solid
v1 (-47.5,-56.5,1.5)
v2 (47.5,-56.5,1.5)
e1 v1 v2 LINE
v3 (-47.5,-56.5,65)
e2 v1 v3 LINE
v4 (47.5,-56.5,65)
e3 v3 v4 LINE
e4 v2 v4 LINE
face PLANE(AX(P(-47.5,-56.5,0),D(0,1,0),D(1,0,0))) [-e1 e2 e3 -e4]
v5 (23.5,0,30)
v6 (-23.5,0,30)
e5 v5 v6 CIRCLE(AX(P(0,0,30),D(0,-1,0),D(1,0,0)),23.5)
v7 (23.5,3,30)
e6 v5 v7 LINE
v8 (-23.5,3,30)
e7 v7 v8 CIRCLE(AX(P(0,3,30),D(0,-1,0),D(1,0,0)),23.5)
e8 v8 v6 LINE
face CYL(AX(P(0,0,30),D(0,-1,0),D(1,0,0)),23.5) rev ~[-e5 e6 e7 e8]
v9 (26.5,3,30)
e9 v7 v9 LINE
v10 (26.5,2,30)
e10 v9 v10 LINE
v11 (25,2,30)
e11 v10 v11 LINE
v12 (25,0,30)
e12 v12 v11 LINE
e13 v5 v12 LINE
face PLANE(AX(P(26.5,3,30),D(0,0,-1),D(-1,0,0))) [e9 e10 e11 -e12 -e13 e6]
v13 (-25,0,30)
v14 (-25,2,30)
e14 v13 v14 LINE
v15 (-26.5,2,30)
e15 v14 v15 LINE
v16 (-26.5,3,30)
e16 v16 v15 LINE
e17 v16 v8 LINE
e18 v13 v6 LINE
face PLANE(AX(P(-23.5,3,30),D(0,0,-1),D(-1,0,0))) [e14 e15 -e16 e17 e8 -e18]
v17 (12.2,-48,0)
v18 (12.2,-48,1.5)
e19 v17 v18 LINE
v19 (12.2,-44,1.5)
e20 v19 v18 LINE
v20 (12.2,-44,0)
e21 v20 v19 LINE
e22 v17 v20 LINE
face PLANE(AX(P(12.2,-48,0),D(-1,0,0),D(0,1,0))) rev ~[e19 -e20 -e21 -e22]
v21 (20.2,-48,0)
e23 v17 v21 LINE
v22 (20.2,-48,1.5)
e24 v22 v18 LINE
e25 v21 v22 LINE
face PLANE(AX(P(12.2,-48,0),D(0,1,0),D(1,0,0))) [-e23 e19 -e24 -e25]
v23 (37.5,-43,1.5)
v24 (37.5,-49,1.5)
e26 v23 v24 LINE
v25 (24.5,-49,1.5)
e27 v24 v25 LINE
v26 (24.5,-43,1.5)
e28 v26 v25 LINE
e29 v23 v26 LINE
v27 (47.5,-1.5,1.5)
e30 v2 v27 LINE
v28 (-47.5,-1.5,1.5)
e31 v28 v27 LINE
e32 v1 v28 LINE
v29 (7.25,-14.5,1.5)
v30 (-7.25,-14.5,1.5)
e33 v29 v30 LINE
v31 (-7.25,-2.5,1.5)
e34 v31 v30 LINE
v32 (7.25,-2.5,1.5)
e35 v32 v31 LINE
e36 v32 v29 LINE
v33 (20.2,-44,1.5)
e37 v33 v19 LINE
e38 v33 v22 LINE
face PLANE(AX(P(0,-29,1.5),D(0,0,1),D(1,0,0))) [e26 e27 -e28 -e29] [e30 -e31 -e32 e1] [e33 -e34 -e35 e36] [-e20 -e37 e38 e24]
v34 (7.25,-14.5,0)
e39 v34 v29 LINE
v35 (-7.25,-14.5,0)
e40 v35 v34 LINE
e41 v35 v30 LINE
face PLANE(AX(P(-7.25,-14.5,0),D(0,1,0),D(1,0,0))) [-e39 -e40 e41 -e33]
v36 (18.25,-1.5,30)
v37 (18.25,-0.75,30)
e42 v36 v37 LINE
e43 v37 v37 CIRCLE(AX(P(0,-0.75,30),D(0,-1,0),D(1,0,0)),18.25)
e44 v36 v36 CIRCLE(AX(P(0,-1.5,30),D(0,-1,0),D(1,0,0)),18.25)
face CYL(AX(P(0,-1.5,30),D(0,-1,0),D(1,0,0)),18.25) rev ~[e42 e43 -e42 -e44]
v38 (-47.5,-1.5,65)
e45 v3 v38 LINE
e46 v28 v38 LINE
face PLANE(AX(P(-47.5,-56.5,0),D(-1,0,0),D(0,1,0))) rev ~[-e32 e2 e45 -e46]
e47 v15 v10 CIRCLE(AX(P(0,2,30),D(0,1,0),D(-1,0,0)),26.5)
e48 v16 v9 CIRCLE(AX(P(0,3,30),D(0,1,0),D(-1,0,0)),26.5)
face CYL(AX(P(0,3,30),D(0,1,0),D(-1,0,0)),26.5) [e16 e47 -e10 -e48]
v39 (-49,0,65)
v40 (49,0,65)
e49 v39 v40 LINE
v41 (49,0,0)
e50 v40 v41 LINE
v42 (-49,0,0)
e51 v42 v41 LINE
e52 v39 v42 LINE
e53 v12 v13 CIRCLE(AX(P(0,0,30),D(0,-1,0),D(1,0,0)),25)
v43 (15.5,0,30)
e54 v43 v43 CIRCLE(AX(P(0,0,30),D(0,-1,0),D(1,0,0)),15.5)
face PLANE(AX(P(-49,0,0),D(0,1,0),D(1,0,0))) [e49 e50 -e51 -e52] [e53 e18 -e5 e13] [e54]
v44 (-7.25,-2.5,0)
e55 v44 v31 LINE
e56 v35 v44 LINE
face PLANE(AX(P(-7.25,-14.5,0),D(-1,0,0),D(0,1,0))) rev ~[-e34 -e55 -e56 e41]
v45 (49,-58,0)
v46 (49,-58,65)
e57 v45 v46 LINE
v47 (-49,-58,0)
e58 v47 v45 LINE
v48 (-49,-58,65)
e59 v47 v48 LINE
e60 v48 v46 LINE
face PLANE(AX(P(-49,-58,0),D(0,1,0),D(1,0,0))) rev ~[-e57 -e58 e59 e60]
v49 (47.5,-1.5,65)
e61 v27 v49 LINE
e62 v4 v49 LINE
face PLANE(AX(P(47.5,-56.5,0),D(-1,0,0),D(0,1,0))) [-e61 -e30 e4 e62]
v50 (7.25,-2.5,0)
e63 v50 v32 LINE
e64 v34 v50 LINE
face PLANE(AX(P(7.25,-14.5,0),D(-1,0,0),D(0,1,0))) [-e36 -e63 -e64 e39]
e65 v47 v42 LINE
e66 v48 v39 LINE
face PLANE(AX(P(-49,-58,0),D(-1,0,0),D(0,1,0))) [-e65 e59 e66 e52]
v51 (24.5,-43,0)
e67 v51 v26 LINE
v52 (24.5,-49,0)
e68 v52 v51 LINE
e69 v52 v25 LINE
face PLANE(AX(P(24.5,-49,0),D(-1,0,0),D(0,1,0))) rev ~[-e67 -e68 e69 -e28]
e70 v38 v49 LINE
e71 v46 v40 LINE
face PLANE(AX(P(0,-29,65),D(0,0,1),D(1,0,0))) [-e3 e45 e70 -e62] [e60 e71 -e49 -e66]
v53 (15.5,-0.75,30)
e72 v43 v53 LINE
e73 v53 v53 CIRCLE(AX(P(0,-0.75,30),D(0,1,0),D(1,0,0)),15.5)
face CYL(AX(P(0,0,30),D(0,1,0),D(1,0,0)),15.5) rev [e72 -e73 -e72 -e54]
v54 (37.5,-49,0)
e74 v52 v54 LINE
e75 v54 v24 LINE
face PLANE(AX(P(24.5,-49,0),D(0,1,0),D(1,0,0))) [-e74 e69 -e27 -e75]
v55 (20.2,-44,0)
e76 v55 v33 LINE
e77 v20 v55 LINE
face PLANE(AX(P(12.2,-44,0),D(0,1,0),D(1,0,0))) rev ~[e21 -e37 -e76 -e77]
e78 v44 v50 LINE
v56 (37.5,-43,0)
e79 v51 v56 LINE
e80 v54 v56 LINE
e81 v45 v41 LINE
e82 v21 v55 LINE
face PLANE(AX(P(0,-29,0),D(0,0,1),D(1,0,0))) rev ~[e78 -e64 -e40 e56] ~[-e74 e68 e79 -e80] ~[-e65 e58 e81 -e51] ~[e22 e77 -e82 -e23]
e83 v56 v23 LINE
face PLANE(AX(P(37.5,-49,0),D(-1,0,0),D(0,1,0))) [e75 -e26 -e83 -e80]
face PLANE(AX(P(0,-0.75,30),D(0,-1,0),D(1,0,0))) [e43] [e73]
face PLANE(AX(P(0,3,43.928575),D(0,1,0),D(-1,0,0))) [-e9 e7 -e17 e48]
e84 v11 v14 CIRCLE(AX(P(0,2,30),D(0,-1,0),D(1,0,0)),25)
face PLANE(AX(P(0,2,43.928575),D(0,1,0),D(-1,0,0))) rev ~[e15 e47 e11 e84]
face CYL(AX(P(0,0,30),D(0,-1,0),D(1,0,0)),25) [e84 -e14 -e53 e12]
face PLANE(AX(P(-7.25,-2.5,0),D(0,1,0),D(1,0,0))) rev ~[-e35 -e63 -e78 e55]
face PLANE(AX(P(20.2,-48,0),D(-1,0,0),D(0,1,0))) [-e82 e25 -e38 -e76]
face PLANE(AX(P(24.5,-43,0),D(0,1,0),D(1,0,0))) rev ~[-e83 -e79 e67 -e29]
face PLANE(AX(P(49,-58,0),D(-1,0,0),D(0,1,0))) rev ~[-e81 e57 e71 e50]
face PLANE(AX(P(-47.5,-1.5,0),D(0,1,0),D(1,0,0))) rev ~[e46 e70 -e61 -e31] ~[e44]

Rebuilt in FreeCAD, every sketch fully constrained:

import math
import FreeCAD as App
import Part
import Sketcher
Q = App.Units.Quantity

doc = App.newDocument("Part")
body = doc.addObject("PartDesign::Body", "Body")

# Sketch on XY plane
sketch1 = body.newObject("Sketcher::SketchObject", "Sketch")
sketch1.AttachmentSupport = (doc.getObject("XY_Plane"), [""])
sketch1.MapMode = "FlatFace"
sketch1.addGeometry([
    Part.LineSegment(App.Vector(-49, 0, 0), App.Vector(-49, -58, 0)),  # 0
    Part.LineSegment(App.Vector(-49, -58, 0), App.Vector(49, -58, 0)),  # 1
    Part.LineSegment(App.Vector(49, -58, 0), App.Vector(49, 0, 0)),  # 2
    Part.LineSegment(App.Vector(49, 0, 0), App.Vector(-49, 0, 0)),  # 3
    Part.LineSegment(App.Vector(48, -56, 0), App.Vector(-48, -56, 0)),  # 4
    Part.LineSegment(App.Vector(-48, -56, 0), App.Vector(-48, -2, 0)),  # 5
    Part.LineSegment(App.Vector(-48, -2, 0), App.Vector(48, -2, 0)),  # 6
    Part.LineSegment(App.Vector(48, -2, 0), App.Vector(48, -56, 0)),  # 7
], False)
sketch1.addConstraint([
    Sketcher.Constraint("Coincident", 0, 2, 1, 1),
    Sketcher.Constraint("Coincident", 1, 2, 2, 1),
    Sketcher.Constraint("Coincident", 2, 2, 3, 1),
    Sketcher.Constraint("Coincident", 3, 2, 0, 1),
    Sketcher.Constraint("Coincident", 4, 2, 5, 1),
    Sketcher.Constraint("Coincident", 5, 2, 6, 1),
    Sketcher.Constraint("Coincident", 6, 2, 7, 1),
    Sketcher.Constraint("Coincident", 7, 2, 4, 1),
    Sketcher.Constraint("Vertical", 0),
    Sketcher.Constraint("Horizontal", 1),
    Sketcher.Constraint("Vertical", 2),
    Sketcher.Constraint("Horizontal", 3),
    Sketcher.Constraint("Horizontal", 4),
    Sketcher.Constraint("Vertical", 5),
    Sketcher.Constraint("Horizontal", 6),
    Sketcher.Constraint("Vertical", 7),
    Sketcher.Constraint("Symmetric", 2, 2, 3, 2, -1, 1),
    Sketcher.Constraint("DistanceX", 1, 1, 1, 2, Q("98 mm")),
    Sketcher.Constraint("DistanceX", 4, 2, 4, 1, Q("95 mm")),
    Sketcher.Constraint("DistanceY", 0, 2, 0, 1, Q("58 mm")),
    Sketcher.Constraint("DistanceY", 5, 1, 5, 2, Q("55 mm")),
    Sketcher.Constraint("DistanceX", 4, 2, -1, 1, Q("47.5 mm")),
    Sketcher.Constraint("DistanceY", 4, 2, -1, 1, Q("56.5 mm")),
])
pad1 = body.newObject("PartDesign::Pad", "Pad")
pad1.Profile = sketch1
pad1.Length = 65

# Sketch on XY plane
sketch2 = body.newObject("Sketcher::SketchObject", "Sketch001")
sketch2.AttachmentSupport = (doc.getObject("XY_Plane"), [""])
sketch2.MapMode = "FlatFace"
sketch2.addGeometry([
    Part.LineSegment(App.Vector(-49, 0, 0), App.Vector(-49, -58, 0)),
    Part.LineSegment(App.Vector(-49, -58, 0), App.Vector(49, -58, 0)),
    Part.LineSegment(App.Vector(49, -58, 0), App.Vector(49, 0, 0)),
    Part.LineSegment(App.Vector(49, 0, 0), App.Vector(-49, 0, 0)),
], False)
sketch2.addConstraint([
    Sketcher.Constraint("Coincident", 0, 2, 1, 1),
    Sketcher.Constraint("Coincident", 1, 2, 2, 1),
    Sketcher.Constraint("Coincident", 2, 2, 3, 1),
    Sketcher.Constraint("Coincident", 3, 2, 0, 1),
    Sketcher.Constraint("Vertical", 0),
    Sketcher.Constraint("Horizontal", 1),
    Sketcher.Constraint("Vertical", 2),
    Sketcher.Constraint("Horizontal", 3),
    Sketcher.Constraint("Symmetric", 2, 2, 3, 2, -1, 1),
    Sketcher.Constraint("DistanceX", 1, 1, 1, 2, Q("98 mm")),
    Sketcher.Constraint("DistanceY", 0, 2, 0, 1, Q("58 mm")),
])
pad2 = body.newObject("PartDesign::Pad", "Pad001")
pad2.Profile = sketch2
pad2.Length = 1.5

# Sketch on XZ plane
sketch3 = body.newObject("Sketcher::SketchObject", "Sketch002")
sketch3.AttachmentSupport = (doc.getObject("XZ_Plane"), [""])
sketch3.MapMode = "FlatFace"
sketch3.addGeometry(Part.Circle(App.Vector(0, 30, 0), App.Vector(0, 0, 1), 16), False)
sketch3.addConstraint([
    Sketcher.Constraint("PointOnObject", 0, 3, -2),
    Sketcher.Constraint("Diameter", 0, Q("31 mm")),
    Sketcher.Constraint("DistanceY", -1, 1, 0, 3, Q("30 mm")),
])
pocket1 = body.newObject("PartDesign::Pocket", "Pocket")
pocket1.Profile = sketch3
pocket1.Length = 5
pocket1.Reversed = True

# Sketch on XZ plane
sketch4 = body.newObject("Sketcher::SketchObject", "Sketch003")
sketch4.AttachmentSupport = (doc.getObject("XZ_Plane"), [""])
sketch4.MapMode = "FlatFace"
sketch4.AttachmentOffset = App.Placement(App.Vector(0, 0, 1.5), App.Rotation())
sketch4.addGeometry(Part.Circle(App.Vector(0, 30, 0), App.Vector(0, 0, 1), 18), False)
sketch4.addConstraint([
    Sketcher.Constraint("PointOnObject", 0, 3, -2),
    Sketcher.Constraint("Diameter", 0, Q("36.5 mm")),
    Sketcher.Constraint("DistanceY", -1, 1, 0, 3, Q("30 mm")),
])
pocket2 = body.newObject("PartDesign::Pocket", "Pocket001")
pocket2.Profile = sketch4
pocket2.Length = 0.75

# Sketch on XY plane
sketch5 = body.newObject("Sketcher::SketchObject", "Sketch004")
sketch5.AttachmentSupport = (doc.getObject("XY_Plane"), [""])
sketch5.MapMode = "FlatFace"
sketch5.addGeometry([
    Part.LineSegment(App.Vector(-7.2, -2.5, 0), App.Vector(-7.2, -14.5, 0)),  # 0
    Part.LineSegment(App.Vector(-7.2, -14.5, 0), App.Vector(7.2, -14.5, 0)),  # 1
    Part.LineSegment(App.Vector(7.2, -14.5, 0), App.Vector(7.2, -2.5, 0)),  # 2
    Part.LineSegment(App.Vector(7.2, -2.5, 0), App.Vector(-7.2, -2.5, 0)),  # 3
    Part.LineSegment(App.Vector(24.5, -43, 0), App.Vector(24.5, -49, 0)),  # 4
    Part.LineSegment(App.Vector(24.5, -49, 0), App.Vector(37.5, -49, 0)),  # 5
    Part.LineSegment(App.Vector(37.5, -49, 0), App.Vector(37.5, -43, 0)),  # 6
    Part.LineSegment(App.Vector(37.5, -43, 0), App.Vector(24.5, -43, 0)),  # 7
    Part.LineSegment(App.Vector(12.2, -44, 0), App.Vector(12.2, -48, 0)),  # 8
    Part.LineSegment(App.Vector(12.2, -48, 0), App.Vector(20.2, -48, 0)),  # 9
    Part.LineSegment(App.Vector(20.2, -48, 0), App.Vector(20.2, -44, 0)),  # 10
    Part.LineSegment(App.Vector(20.2, -44, 0), App.Vector(12.2, -44, 0)),  # 11
], False)
sketch5.addConstraint([
    Sketcher.Constraint("Coincident", 0, 2, 1, 1),
    Sketcher.Constraint("Coincident", 1, 2, 2, 1),
    Sketcher.Constraint("Coincident", 2, 2, 3, 1),
    Sketcher.Constraint("Coincident", 3, 2, 0, 1),
    Sketcher.Constraint("Coincident", 4, 2, 5, 1),
    Sketcher.Constraint("Coincident", 5, 2, 6, 1),
    Sketcher.Constraint("Coincident", 6, 2, 7, 1),
    Sketcher.Constraint("Coincident", 7, 2, 4, 1),
    Sketcher.Constraint("Coincident", 8, 2, 9, 1),
    Sketcher.Constraint("Coincident", 9, 2, 10, 1),
    Sketcher.Constraint("Coincident", 10, 2, 11, 1),
    Sketcher.Constraint("Coincident", 11, 2, 8, 1),
    Sketcher.Constraint("Vertical", 0),
    Sketcher.Constraint("Horizontal", 1),
    Sketcher.Constraint("Vertical", 2),
    Sketcher.Constraint("Horizontal", 3),
    Sketcher.Constraint("Vertical", 4),
    Sketcher.Constraint("Horizontal", 5),
    Sketcher.Constraint("Vertical", 6),
    Sketcher.Constraint("Horizontal", 7),
    Sketcher.Constraint("Vertical", 8),
    Sketcher.Constraint("Horizontal", 9),
    Sketcher.Constraint("Vertical", 10),
    Sketcher.Constraint("Horizontal", 11),
    Sketcher.Constraint("DistanceX", 5, 1, 5, 2, Q("13 mm")),
    Sketcher.Constraint("DistanceX", 9, 1, 9, 2, Q("8 mm")),
    Sketcher.Constraint("DistanceY", 0, 2, 0, 1, Q("12 mm")),
    Sketcher.Constraint("DistanceY", 4, 2, 4, 1, Q("6 mm")),
    Sketcher.Constraint("DistanceY", 8, 2, 8, 1, Q("4 mm")),
    Sketcher.Constraint("DistanceX", 1, 1, 1, 2, Q("14.5 mm")),
    Sketcher.Constraint("DistanceY", 4, 2, -1, 1, Q("49 mm")),
    Sketcher.Constraint("DistanceY", 8, 2, -1, 1, Q("48 mm")),
    Sketcher.Constraint("DistanceY", 0, 2, -1, 1, Q("14.5 mm")),
    Sketcher.Constraint("DistanceX", -1, 1, 4, 2, Q("24.5 mm")),
    Sketcher.Constraint("DistanceX", -1, 1, 8, 2, Q("12.2 mm")),
    Sketcher.Constraint("DistanceX", 0, 2, -1, 1, Q("7.25 mm")),
])
pocket3 = body.newObject("PartDesign::Pocket", "Pocket002")
pocket3.Profile = sketch5
pocket3.Length = 5
pocket3.Reversed = True

# Sketch on XZ plane
sketch6 = body.newObject("Sketcher::SketchObject", "Sketch005")
sketch6.AttachmentSupport = (doc.getObject("XZ_Plane"), [""])
sketch6.MapMode = "FlatFace"
sketch6.addGeometry([
    Part.ArcOfCircle(Part.Circle(App.Vector(0, 30, 0), App.Vector(0, 0, 1), 23.5), math.radians(0), math.radians(180)),
    Part.LineSegment(App.Vector(23.5, 30, 0), App.Vector(25, 30, 0)),
    Part.ArcOfCircle(Part.Circle(App.Vector(0, 30, 0), App.Vector(0, 0, 1), 25), math.radians(0), math.radians(180)),
    Part.LineSegment(App.Vector(-25, 30, 0), App.Vector(-23.5, 30, 0)),
], False)
sketch6.addConstraint([
    Sketcher.Constraint("Coincident", 0, 1, 1, 1),
    Sketcher.Constraint("Coincident", 1, 2, 2, 1),
    Sketcher.Constraint("Coincident", 2, 2, 3, 1),
    Sketcher.Constraint("Coincident", 3, 2, 0, 2),
    Sketcher.Constraint("Horizontal", 1),
    Sketcher.Constraint("Horizontal", 3),
    Sketcher.Constraint("Coincident", 2, 3, 0, 3),
    Sketcher.Constraint("Symmetric", 1, 2, 2, 2, -2),
    Sketcher.Constraint("Horizontal", 2, 3, 0, 1),
    Sketcher.Constraint("Radius", 2, Q("25 mm")),
    Sketcher.Constraint("Radius", 0, Q("23.5 mm")),
    Sketcher.Constraint("DistanceY", -1, 1, 0, 3, Q("30 mm")),
])
pad3 = body.newObject("PartDesign::Pad", "Pad002")
pad3.Profile = sketch6
pad3.Length = 3
pad3.Reversed = True

# Sketch on XZ plane
sketch7 = body.newObject("Sketcher::SketchObject", "Sketch006")
sketch7.AttachmentSupport = (doc.getObject("XZ_Plane"), [""])
sketch7.MapMode = "FlatFace"
sketch7.AttachmentOffset = App.Placement(App.Vector(0, 0, -3), App.Rotation())
sketch7.addGeometry([
    Part.ArcOfCircle(Part.Circle(App.Vector(0, 30, 0), App.Vector(0, 0, 1), 26.5), math.radians(0), math.radians(180)),
    Part.LineSegment(App.Vector(26.5, 30, 0), App.Vector(23.5, 30, 0)),
    Part.ArcOfCircle(Part.Circle(App.Vector(0, 30, 0), App.Vector(0, 0, 1), 23.5), math.radians(0), math.radians(180)),
    Part.LineSegment(App.Vector(-23.5, 30, 0), App.Vector(-26.5, 30, 0)),
], False)
sketch7.addConstraint([
    Sketcher.Constraint("Coincident", 0, 1, 1, 1),
    Sketcher.Constraint("Coincident", 1, 2, 2, 1),
    Sketcher.Constraint("Coincident", 2, 2, 3, 1),
    Sketcher.Constraint("Coincident", 3, 2, 0, 2),
    Sketcher.Constraint("Horizontal", 1),
    Sketcher.Constraint("Horizontal", 3),
    Sketcher.Constraint("Coincident", 2, 3, 0, 3),
    Sketcher.Constraint("Symmetric", 1, 2, 2, 2, -2),
    Sketcher.Constraint("Horizontal", 2, 3, 0, 1),
    Sketcher.Constraint("Radius", 0, Q("26.5 mm")),
    Sketcher.Constraint("Radius", 2, Q("23.5 mm")),
    Sketcher.Constraint("DistanceY", -1, 1, 0, 3, Q("30 mm")),
])
pad4 = body.newObject("PartDesign::Pad", "Pad003")
pad4.Profile = sketch7
pad4.Length = 1

doc.recompute()
